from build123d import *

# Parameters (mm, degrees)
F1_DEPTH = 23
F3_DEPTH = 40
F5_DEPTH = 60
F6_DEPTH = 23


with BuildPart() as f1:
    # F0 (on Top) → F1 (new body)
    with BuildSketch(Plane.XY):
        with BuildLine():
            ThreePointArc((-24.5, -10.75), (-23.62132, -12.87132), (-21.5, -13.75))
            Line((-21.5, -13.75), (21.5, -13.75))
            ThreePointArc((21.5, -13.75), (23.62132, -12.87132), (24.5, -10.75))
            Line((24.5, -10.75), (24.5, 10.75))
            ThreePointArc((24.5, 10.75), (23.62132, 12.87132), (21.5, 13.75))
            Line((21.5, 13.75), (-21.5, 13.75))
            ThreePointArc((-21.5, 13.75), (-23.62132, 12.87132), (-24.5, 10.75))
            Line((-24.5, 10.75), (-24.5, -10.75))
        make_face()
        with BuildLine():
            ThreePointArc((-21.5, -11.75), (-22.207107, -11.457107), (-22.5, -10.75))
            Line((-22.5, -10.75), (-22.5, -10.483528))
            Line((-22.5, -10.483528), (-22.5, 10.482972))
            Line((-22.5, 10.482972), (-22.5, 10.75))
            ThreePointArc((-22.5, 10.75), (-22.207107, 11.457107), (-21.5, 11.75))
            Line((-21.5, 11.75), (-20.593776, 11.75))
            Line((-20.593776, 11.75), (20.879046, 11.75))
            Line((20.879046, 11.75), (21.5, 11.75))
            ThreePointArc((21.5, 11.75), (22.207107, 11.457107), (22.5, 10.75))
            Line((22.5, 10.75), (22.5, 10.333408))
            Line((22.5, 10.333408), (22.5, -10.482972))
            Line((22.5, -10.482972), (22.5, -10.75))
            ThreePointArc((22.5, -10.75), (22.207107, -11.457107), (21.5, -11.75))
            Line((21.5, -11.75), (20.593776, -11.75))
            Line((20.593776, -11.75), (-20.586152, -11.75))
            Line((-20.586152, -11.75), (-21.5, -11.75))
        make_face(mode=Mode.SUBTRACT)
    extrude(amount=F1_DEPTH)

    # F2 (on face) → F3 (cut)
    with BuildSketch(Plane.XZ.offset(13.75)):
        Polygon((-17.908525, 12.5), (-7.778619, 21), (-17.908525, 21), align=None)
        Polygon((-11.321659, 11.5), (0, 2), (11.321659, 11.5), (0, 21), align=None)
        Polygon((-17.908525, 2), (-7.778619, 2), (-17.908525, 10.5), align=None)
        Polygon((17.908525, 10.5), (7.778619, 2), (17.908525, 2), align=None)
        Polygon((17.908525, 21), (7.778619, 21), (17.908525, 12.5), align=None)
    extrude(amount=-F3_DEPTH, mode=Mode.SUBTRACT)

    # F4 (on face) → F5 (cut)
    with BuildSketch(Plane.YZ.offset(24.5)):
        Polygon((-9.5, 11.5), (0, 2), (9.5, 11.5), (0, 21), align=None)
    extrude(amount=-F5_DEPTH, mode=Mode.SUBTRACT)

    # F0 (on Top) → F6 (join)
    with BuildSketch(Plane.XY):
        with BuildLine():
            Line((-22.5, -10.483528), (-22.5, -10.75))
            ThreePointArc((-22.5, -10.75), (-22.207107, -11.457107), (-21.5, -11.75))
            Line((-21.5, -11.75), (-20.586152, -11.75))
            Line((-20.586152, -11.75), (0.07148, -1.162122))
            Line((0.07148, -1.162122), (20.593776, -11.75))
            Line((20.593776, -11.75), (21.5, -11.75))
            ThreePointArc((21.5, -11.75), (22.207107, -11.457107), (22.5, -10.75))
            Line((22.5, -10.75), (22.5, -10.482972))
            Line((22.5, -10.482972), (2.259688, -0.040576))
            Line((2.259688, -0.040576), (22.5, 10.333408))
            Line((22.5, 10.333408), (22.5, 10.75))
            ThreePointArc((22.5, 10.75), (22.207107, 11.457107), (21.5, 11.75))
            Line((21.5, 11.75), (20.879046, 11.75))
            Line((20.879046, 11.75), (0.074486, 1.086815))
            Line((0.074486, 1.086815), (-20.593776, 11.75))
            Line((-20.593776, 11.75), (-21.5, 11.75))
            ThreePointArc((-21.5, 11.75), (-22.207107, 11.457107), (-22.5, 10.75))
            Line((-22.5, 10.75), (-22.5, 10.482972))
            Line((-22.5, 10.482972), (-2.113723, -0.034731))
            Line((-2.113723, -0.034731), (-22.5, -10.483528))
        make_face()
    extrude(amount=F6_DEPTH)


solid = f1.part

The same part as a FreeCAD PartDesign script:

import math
import FreeCAD as App
import Part
import Sketcher
from FreeCAD import Vector
Q = App.Units.Quantity

doc = App.newDocument("Part")
body = doc.addObject("PartDesign::Body", "Body")

# Sketch on XY plane
sketch1 = doc.addObject("Sketcher::SketchObject", "Sketch")
body.addObject(sketch1)
sketch1.AttachmentSupport = (doc.XY_Plane, [""])
sketch1.MapMode = "FlatFace"
sketch1.addGeometry([
    Part.ArcOfCircle(Part.Circle(Vector(-21.499999, -10.749999, 0), Vector(0, 0, 1), 3.000001), math.radians(-179.999978), math.radians(-90.000022)),  # 0
    Part.LineSegment(Vector(-21.5, -13.75, 0), Vector(21.5, -13.75, 0)),  # 1
    Part.ArcOfCircle(Part.Circle(Vector(21.499999, -10.749999, 0), Vector(0, 0, 1), 3.000001), math.radians(-89.999978), math.radians(-0.000022)),  # 2
    Part.LineSegment(Vector(24.5, -10.75, 0), Vector(24.5, 10.75, 0)),  # 3
    Part.ArcOfCircle(Part.Circle(Vector(21.499999, 10.749999, 0), Vector(0, 0, 1), 3.000001), math.radians(0.000022), math.radians(89.999978)),  # 4
    Part.LineSegment(Vector(21.5, 13.75, 0), Vector(-21.5, 13.75, 0)),  # 5
    Part.ArcOfCircle(Part.Circle(Vector(-21.499999, 10.749999, 0), Vector(0, 0, 1), 3.000001), math.radians(90.000022), math.radians(179.999978)),  # 6
    Part.LineSegment(Vector(-24.5, 10.75, 0), Vector(-24.5, -10.75, 0)),  # 7
    Part.LineSegment(Vector(21.5, -11.75, 0), Vector(-21.5, -11.75, 0)),  # 8
    Part.ArcOfCircle(Part.Circle(Vector(-21.500001, -10.750001, 0), Vector(0, 0, 1), 0.999999), math.radians(179.999957), math.radians(270.000043)),  # 9
    Part.LineSegment(Vector(-22.5, -10.75, 0), Vector(-22.5, 10.75, 0)),  # 10
    Part.ArcOfCircle(Part.Circle(Vector(-21.500001, 10.750001, 0), Vector(0, 0, 1), 0.999999), math.radians(89.999957), math.radians(180.000043)),  # 11
    Part.LineSegment(Vector(-21.5, 11.75, 0), Vector(21.5, 11.75, 0)),  # 12
    Part.ArcOfCircle(Part.Circle(Vector(21.500001, 10.750001, 0), Vector(0, 0, 1), 0.999999), math.radians(-0.000043), math.radians(90.000043)),  # 13
    Part.LineSegment(Vector(22.5, 10.75, 0), Vector(22.5, -10.75, 0)),  # 14
    Part.ArcOfCircle(Part.Circle(Vector(21.500001, -10.750001, 0), Vector(0, 0, 1), 0.999999), math.radians(-90.000043), math.radians(0.000043)),  # 15
], False)
sketch1.addConstraint([
    Sketcher.Constraint("Tangent", 0, 2, 1, 1),
    Sketcher.Constraint("Tangent", 1, 2, 2, 1),
    Sketcher.Constraint("Tangent", 2, 2, 3, 1),
    Sketcher.Constraint("Tangent", 3, 2, 4, 1),
    Sketcher.Constraint("Tangent", 4, 2, 5, 1),
    Sketcher.Constraint("Tangent", 5, 2, 6, 1),
    Sketcher.Constraint("Tangent", 6, 2, 7, 1),
    Sketcher.Constraint("Tangent", 7, 2, 0, 1),
    Sketcher.Constraint("Tangent", 8, 2, 9, 2),
    Sketcher.Constraint("Tangent", 9, 1, 10, 1),
    Sketcher.Constraint("Tangent", 10, 2, 11, 2),
    Sketcher.Constraint("Tangent", 11, 1, 12, 1),
    Sketcher.Constraint("Tangent", 12, 2, 13, 2),
    Sketcher.Constraint("Tangent", 13, 1, 14, 1),
    Sketcher.Constraint("Tangent", 14, 2, 15, 2),
    Sketcher.Constraint("Tangent", 15, 1, 8, 1),
    Sketcher.Constraint("Horizontal", 1),
    Sketcher.Constraint("Vertical", 3),
    Sketcher.Constraint("Horizontal", 5),
    Sketcher.Constraint("Vertical", 7),
    Sketcher.Constraint("Horizontal", 8),
    Sketcher.Constraint("Vertical", 10),
    Sketcher.Constraint("Horizontal", 12),
    Sketcher.Constraint("Vertical", 14),
    Sketcher.Constraint("Coincident", 9, 3, 0, 3),
    Sketcher.Constraint("Coincident", 11, 3, 6, 3),
    Sketcher.Constraint("Coincident", 13, 3, 4, 3),
    Sketcher.Constraint("Equal", 0, 2),
    Sketcher.Constraint("Equal", 2, 4),
    Sketcher.Constraint("Equal", 4, 6),
    Sketcher.Constraint("Equal", 13, 15),
    Sketcher.Constraint("Symmetric", 0, 3, 4, 3, -1, 1),
    Sketcher.Constraint("Radius", 0, Q("3.000001 mm")),
    Sketcher.Constraint("Radius", 9, Q("0.999999 mm")),
    Sketcher.Constraint("DistanceX", 1, 1, 1, 2, Q("43 mm")),
    Sketcher.Constraint("DistanceY", 3, 1, 3, 2, Q("21.5 mm")),
])
pad1 = doc.addObject("PartDesign::Pad", "Pad")
body.addObject(pad1)
pad1.Profile = sketch1
pad1.Length = 23

# Sketch on XZ plane
sketch2 = doc.addObject("Sketcher::SketchObject", "Sketch001")
body.addObject(sketch2)
sketch2.AttachmentSupport = (doc.XZ_Plane, [""])
sketch2.MapMode = "FlatFace"
sketch2.AttachmentOffset = App.Placement(Vector(0, 0, 13.75), App.Rotation())
sketch2.addGeometry([
    Part.LineSegment(Vector(-17.908525, 12.5, 0), Vector(-7.778619, 21, 0)),  # 0
    Part.LineSegment(Vector(-7.778619, 21, 0), Vector(-17.908525, 21, 0)),  # 1
    Part.LineSegment(Vector(-17.908525, 21, 0), Vector(-17.908525, 12.5, 0)),  # 2
    Part.LineSegment(Vector(-11.321659, 11.5, 0), Vector(0, 2, 0)),  # 3
    Part.LineSegment(Vector(0, 2, 0), Vector(11.321659, 11.5, 0)),  # 4
    Part.LineSegment(Vector(11.321659, 11.5, 0), Vector(0, 21, 0)),  # 5
    Part.LineSegment(Vector(0, 21, 0), Vector(-11.321659, 11.5, 0)),  # 6
    Part.LineSegment(Vector(-17.908525, 2, 0), Vector(-7.778619, 2, 0)),  # 7
    Part.LineSegment(Vector(-7.778619, 2, 0), Vector(-17.908525, 10.5, 0)),  # 8
    Part.LineSegment(Vector(-17.908525, 10.5, 0), Vector(-17.908525, 2, 0)),  # 9
    Part.LineSegment(Vector(17.908525, 10.5, 0), Vector(7.778619, 2, 0)),  # 10
    Part.LineSegment(Vector(7.778619, 2, 0), Vector(17.908525, 2, 0)),  # 11
    Part.LineSegment(Vector(17.908525, 2, 0), Vector(17.908525, 10.5, 0)),  # 12
    Part.LineSegment(Vector(17.908525, 21, 0), Vector(7.778619, 21, 0)),  # 13
    Part.LineSegment(Vector(7.778619, 21, 0), Vector(17.908525, 12.5, 0)),  # 14
    Part.LineSegment(Vector(17.908525, 12.5, 0), Vector(17.908525, 21, 0)),  # 15
], False)
sketch2.addConstraint([
    Sketcher.Constraint("Coincident", 0, 2, 1, 1),
    Sketcher.Constraint("Coincident", 1, 2, 2, 1),
    Sketcher.Constraint("Coincident", 2, 2, 0, 1),
    Sketcher.Constraint("Coincident", 3, 2, 4, 1),
    Sketcher.Constraint("Coincident", 4, 2, 5, 1),
    Sketcher.Constraint("Coincident", 5, 2, 6, 1),
    Sketcher.Constraint("Coincident", 6, 2, 3, 1),
    Sketcher.Constraint("Coincident", 7, 2, 8, 1),
    Sketcher.Constraint("Coincident", 8, 2, 9, 1),
    Sketcher.Constraint("Coincident", 9, 2, 7, 1),
    Sketcher.Constraint("Coincident", 10, 2, 11, 1),
    Sketcher.Constraint("Coincident", 11, 2, 12, 1),
    Sketcher.Constraint("Coincident", 12, 2, 10, 1),
    Sketcher.Constraint("Coincident", 13, 2, 14, 1),
    Sketcher.Constraint("Coincident", 14, 2, 15, 1),
    Sketcher.Constraint("Coincident", 15, 2, 13, 1),
    Sketcher.Constraint("Horizontal", 1),
    Sketcher.Constraint("Vertical", 2),
    Sketcher.Constraint("Horizontal", 7),
    Sketcher.Constraint("Vertical", 9),
    Sketcher.Constraint("Horizontal", 11),
    Sketcher.Constraint("Vertical", 12),
    Sketcher.Constraint("Horizontal", 13),
    Sketcher.Constraint("Vertical", 15),
    Sketcher.Constraint("Symmetric", 4, 2, 6, 2, -2),
    Sketcher.Constraint("Symmetric", 7, 2, 10, 2, -2),
    Sketcher.Constraint("Symmetric", 8, 2, 12, 2, -2),
    Sketcher.Constraint("Symmetric", 0, 2, 13, 2, -2),
    Sketcher.Constraint("Symmetric", 2, 2, 14, 2, -2),
    Sketcher.Constraint("PointOnObject", 3, 2, -2),
    Sketcher.Constraint("PointOnObject", 5, 2, -2),
    Sketcher.Constraint("Parallel", 0, 4),
    Sketcher.Constraint("Parallel", 3, 5),
    Sketcher.Constraint("Parallel", 5, 8),
    Sketcher.Constraint("Horizontal", 1, 2, 5, 2),
    Sketcher.Constraint("Horizontal", 3, 2, 7, 2),
    Sketcher.Constraint("Vertical", 0, 2, 7, 2),
    Sketcher.Constraint("Vertical", 2, 2, 8, 2),
    Sketcher.Constraint("Angle", 0, Q("39.999999 deg")),
    Sketcher.Constraint("DistanceY", 2, 2, 2, 1, Q("8.5 mm")),
    Sketcher.Constraint("DistanceY", -1, 1, 0, 2, Q("21 mm")),
    Sketcher.Constraint("DistanceY", -1, 1, 3, 2, Q("2 mm")),
    Sketcher.Constraint("DistanceX", 0, 2, -1, 1, Q("7.778619 mm")),
])
pocket1 = doc.addObject("PartDesign::Pocket", "Pocket")
body.addObject(pocket1)
pocket1.Profile = sketch2
pocket1.Length = 40

# Sketch on YZ plane
sketch3 = doc.addObject("Sketcher::SketchObject", "Sketch002")
body.addObject(sketch3)
sketch3.AttachmentSupport = (doc.YZ_Plane, [""])
sketch3.MapMode = "FlatFace"
sketch3.AttachmentOffset = App.Placement(Vector(0, 0, 24.5), App.Rotation())
sketch3.addGeometry([
    Part.LineSegment(Vector(-9.5, 11.5, 0), Vector(0, 2, 0)),
    Part.LineSegment(Vector(0, 2, 0), Vector(9.5, 11.5, 0)),
    Part.LineSegment(Vector(9.5, 11.5, 0), Vector(0, 21, 0)),
    Part.LineSegment(Vector(0, 21, 0), Vector(-9.5, 11.5, 0)),
], False)
sketch3.addConstraint([
    Sketcher.Constraint("Coincident", 0, 2, 1, 1),
    Sketcher.Constraint("Coincident", 1, 2, 2, 1),
    Sketcher.Constraint("Coincident", 2, 2, 3, 1),
    Sketcher.Constraint("Coincident", 3, 2, 0, 1),
    Sketcher.Constraint("Symmetric", 1, 2, 3, 2, -2),
    Sketcher.Constraint("PointOnObject", 0, 2, -2),
    Sketcher.Constraint("PointOnObject", 2, 2, -2),
    Sketcher.Constraint("Perpendicular", 0, 1),
    Sketcher.Constraint("Perpendicular", 1, 2),
    Sketcher.Constraint("DistanceY", -1, 1, 0, 2, Q("2 mm")),
    Sketcher.Constraint("DistanceY", -1, 1, 2, 2, Q("21 mm")),
])
pocket2 = doc.addObject("PartDesign::Pocket", "Pocket001")
body.addObject(pocket2)
pocket2.Profile = sketch3
pocket2.Length = 60

# Sketch on XY plane
sketch4 = doc.addObject("Sketcher::SketchObject", "Sketch003")
body.addObject(sketch4)
sketch4.AttachmentSupport = (doc.XY_Plane, [""])
sketch4.MapMode = "FlatFace"
sketch4.addGeometry([
    Part.LineSegment(Vector(-22.5, -10.483528, 0), Vector(-22.5, -10.75, 0)),  # 0
    Part.ArcOfCircle(Part.Circle(Vector(-21.500001, -10.750001, 0), Vector(0, 0, 1), 0.999999), math.radians(179.999957), math.radians(270.000043)),  # 1
    Part.LineSegment(Vector(-21.5, -11.75, 0), Vector(-20.586152, -11.75, 0)),  # 2
    Part.LineSegment(Vector(-20.586152, -11.75, 0), Vector(0.07148, -1.162122, 0)),  # 3
    Part.LineSegment(Vector(0.07148, -1.162122, 0), Vector(20.593776, -11.75, 0)),  # 4
    Part.LineSegment(Vector(20.593776, -11.75, 0), Vector(21.5, -11.75, 0)),  # 5
    Part.ArcOfCircle(Part.Circle(Vector(21.500001, -10.750001, 0), Vector(0, 0, 1), 0.999999), math.radians(-90.000043), math.radians(0.000043)),  # 6
    Part.LineSegment(Vector(22.5, -10.75, 0), Vector(22.5, -10.482972, 0)),  # 7
    Part.LineSegment(Vector(22.5, -10.482972, 0), Vector(2.259688, -0.040576, 0)),  # 8
    Part.LineSegment(Vector(2.259688, -0.040576, 0), Vector(22.5, 10.333408, 0)),  # 9
    Part.LineSegment(Vector(22.5, 10.333408, 0), Vector(22.5, 10.75, 0)),  # 10
    Part.ArcOfCircle(Part.Circle(Vector(21.500001, 10.750001, 0), Vector(0, 0, 1), 0.999999), math.radians(-0.000043), math.radians(90.000043)),  # 11
    Part.LineSegment(Vector(21.5, 11.75, 0), Vector(20.879046, 11.75, 0)),  # 12
    Part.LineSegment(Vector(20.879046, 11.75, 0), Vector(0.074486, 1.086815, 0)),  # 13
    Part.LineSegment(Vector(0.074486, 1.086815, 0), Vector(-20.593776, 11.75, 0)),  # 14
    Part.LineSegment(Vector(-20.593776, 11.75, 0), Vector(-21.5, 11.75, 0)),  # 15
    Part.ArcOfCircle(Part.Circle(Vector(-21.500001, 10.750001, 0), Vector(0, 0, 1), 0.999999), math.radians(89.999957), math.radians(180.000043)),  # 16
    Part.LineSegment(Vector(-22.5, 10.75, 0), Vector(-22.5, 10.482972, 0)),  # 17
    Part.LineSegment(Vector(-22.5, 10.482972, 0), Vector(-2.113723, -0.034731, 0)),  # 18
    Part.LineSegment(Vector(-2.113723, -0.034731, 0), Vector(-22.5, -10.483528, 0)),  # 19
], False)
sketch4.addConstraint([
    Sketcher.Constraint("Tangent", 0, 2, 1, 1),
    Sketcher.Constraint("Tangent", 1, 2, 2, 1),
    Sketcher.Constraint("Coincident", 2, 2, 3, 1),
    Sketcher.Constraint("Coincident", 3, 2, 4, 1),
    Sketcher.Constraint("Coincident", 4, 2, 5, 1),
    Sketcher.Constraint("Tangent", 5, 2, 6, 1),
    Sketcher.Constraint("Tangent", 6, 2, 7, 1),
    Sketcher.Constraint("Coincident", 7, 2, 8, 1),
    Sketcher.Constraint("Coincident", 8, 2, 9, 1),
    Sketcher.Constraint("Coincident", 9, 2, 10, 1),
    Sketcher.Constraint("Tangent", 10, 2, 11, 1),
    Sketcher.Constraint("Tangent", 11, 2, 12, 1),
    Sketcher.Constraint("Coincident", 12, 2, 13, 1),
    Sketcher.Constraint("Coincident", 13, 2, 14, 1),
    Sketcher.Constraint("Coincident", 14, 2, 15, 1),
    Sketcher.Constraint("Tangent", 15, 2, 16, 1),
    Sketcher.Constraint("Tangent", 16, 2, 17, 1),
    Sketcher.Constraint("Coincident", 17, 2, 18, 1),
    Sketcher.Constraint("Coincident", 18, 2, 19, 1),
    Sketcher.Constraint("Coincident", 19, 2, 0, 1),
    Sketcher.Constraint("Vertical", 0),
    Sketcher.Constraint("Horizontal", 2),
    Sketcher.Constraint("Horizontal", 5),
    Sketcher.Constraint("Vertical", 7),
    Sketcher.Constraint("Vertical", 10),
    Sketcher.Constraint("Horizontal", 12),
    Sketcher.Constraint("Horizontal", 15),
    Sketcher.Constraint("Vertical", 17),
    Sketcher.Constraint("Equal", 1, 6),
    Sketcher.Constraint("Equal", 6, 11),
    Sketcher.Constraint("Equal", 11, 16),
    Sketcher.Constraint("Symmetric", 1, 3, 11, 3, -1, 1),
    Sketcher.Constraint("Symmetric", 6, 3, 16, 3, -1, 1),
    Sketcher.Constraint("Symmetric", 1, 3, 6, 3, -2),
    Sketcher.Constraint("Parallel", 4, 8),
    Sketcher.Constraint("Parallel", 3, 9),
    Sketcher.Constraint("Parallel", 9, 13),
    Sketcher.Constraint("Parallel", 8, 14),
    Sketcher.Constraint("Parallel", 14, 18),
    Sketcher.Constraint("Parallel", 13, 19),
    Sketcher.Constraint("Equal", 5, 15),
    Sketcher.Constraint("Equal", 7, 17),
    Sketcher.Constraint("Radius", 1, Q("0.999999 mm")),
    Sketcher.Constraint("DistanceX", 1, 3, 6, 3, Q("43.000001 mm")),
    Sketcher.Constraint("DistanceY", 6, 3, 11, 3, Q("21.500001 mm")),
    Sketcher.Constraint("DistanceX", 2, 1, 2, 2, Q("0.913848 mm")),
    Sketcher.Constraint("DistanceY", 10, 1, 10, 2, Q("0.416592 mm")),
    Sketcher.Constraint("DistanceY", 19, 2, 17, 2, Q("20.9665 mm")),
    Sketcher.Constraint("Distance", 4, Q("23.092592 mm")),
    Sketcher.Constraint("Distance", 8, Q("22.775291 mm")),
    Sketcher.Constraint("Distance", 13, Q("23.37805 mm")),
    Sketcher.Constraint("Distance", 14, Q("23.256839 mm")),
    Sketcher.Constraint("DistanceX", 5, 1, 5, 2, Q("0.906224 mm")),
])
pad2 = doc.addObject("PartDesign::Pad", "Pad001")
body.addObject(pad2)
pad2.Profile = sketch4
pad2.Length = 23

doc.recompute()
